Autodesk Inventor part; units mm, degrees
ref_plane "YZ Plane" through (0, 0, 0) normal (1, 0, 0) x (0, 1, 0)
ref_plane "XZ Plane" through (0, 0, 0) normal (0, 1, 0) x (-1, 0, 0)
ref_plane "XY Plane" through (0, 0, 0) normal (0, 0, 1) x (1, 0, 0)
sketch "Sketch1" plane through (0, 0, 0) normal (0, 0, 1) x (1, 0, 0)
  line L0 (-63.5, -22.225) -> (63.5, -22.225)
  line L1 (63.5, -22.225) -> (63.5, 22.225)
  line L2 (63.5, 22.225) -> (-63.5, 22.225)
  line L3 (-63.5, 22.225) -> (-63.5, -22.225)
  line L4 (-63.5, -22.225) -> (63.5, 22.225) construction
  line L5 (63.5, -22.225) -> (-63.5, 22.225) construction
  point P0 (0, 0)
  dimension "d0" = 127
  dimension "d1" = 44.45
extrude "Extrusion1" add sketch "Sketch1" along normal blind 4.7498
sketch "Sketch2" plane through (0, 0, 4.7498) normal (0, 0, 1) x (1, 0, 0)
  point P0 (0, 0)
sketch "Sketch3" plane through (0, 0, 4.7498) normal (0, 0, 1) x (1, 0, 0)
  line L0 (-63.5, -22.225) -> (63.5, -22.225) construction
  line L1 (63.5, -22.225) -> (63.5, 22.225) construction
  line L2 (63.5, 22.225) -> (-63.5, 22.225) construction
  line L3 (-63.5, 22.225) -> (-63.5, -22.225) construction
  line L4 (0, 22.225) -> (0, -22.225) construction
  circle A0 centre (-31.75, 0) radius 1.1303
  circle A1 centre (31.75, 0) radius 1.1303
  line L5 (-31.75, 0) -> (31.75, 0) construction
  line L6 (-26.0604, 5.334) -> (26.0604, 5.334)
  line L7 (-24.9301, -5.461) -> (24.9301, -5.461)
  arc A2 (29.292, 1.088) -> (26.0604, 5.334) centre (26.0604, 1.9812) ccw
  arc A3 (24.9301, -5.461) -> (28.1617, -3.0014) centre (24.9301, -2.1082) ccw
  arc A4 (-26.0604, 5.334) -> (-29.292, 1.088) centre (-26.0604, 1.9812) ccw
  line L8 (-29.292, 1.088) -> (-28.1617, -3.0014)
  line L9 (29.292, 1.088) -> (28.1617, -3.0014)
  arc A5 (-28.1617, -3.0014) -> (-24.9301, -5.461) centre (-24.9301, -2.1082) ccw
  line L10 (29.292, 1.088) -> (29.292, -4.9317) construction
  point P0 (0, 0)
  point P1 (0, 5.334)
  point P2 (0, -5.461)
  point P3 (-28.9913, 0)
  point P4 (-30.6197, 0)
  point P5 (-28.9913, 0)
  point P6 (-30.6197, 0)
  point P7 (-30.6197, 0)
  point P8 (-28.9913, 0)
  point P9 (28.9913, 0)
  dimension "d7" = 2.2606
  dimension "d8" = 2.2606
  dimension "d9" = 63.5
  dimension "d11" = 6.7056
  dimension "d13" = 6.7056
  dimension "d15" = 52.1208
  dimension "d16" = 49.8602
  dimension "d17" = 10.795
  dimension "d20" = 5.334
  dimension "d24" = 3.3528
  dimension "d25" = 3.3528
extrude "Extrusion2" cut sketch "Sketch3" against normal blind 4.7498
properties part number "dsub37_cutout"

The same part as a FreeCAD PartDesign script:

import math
import FreeCAD as App
import Part
import Sketcher

V = App.Vector
Q = App.Units.Quantity

doc = App.newDocument("Part")
body = doc.addObject("PartDesign::Body", "Body")

# Sketch on XY plane
sketch1 = body.newObject("Sketcher::SketchObject", "Sketch")
sketch1.AttachmentSupport = (doc.getObject("XY_Plane"), [""])
sketch1.MapMode = "FlatFace"
sketch1.addGeometry(Part.LineSegment(V(-63.5, 22.225, 0), V(-63.5, -22.225, 0)), False)
sketch1.addGeometry(Part.LineSegment(V(-63.5, -22.225, 0), V(63.5, -22.225, 0)), False)
sketch1.addGeometry(Part.LineSegment(V(63.5, -22.225, 0), V(63.5, 22.225, 0)), False)
sketch1.addGeometry(Part.LineSegment(V(63.5, 22.225, 0), V(-63.5, 22.225, 0)), False)
sketch1.addConstraint(Sketcher.Constraint("Coincident", 0, 2, 1, 1))
sketch1.addConstraint(Sketcher.Constraint("Coincident", 1, 2, 2, 1))
sketch1.addConstraint(Sketcher.Constraint("Coincident", 2, 2, 3, 1))
sketch1.addConstraint(Sketcher.Constraint("Coincident", 3, 2, 0, 1))
sketch1.addConstraint(Sketcher.Constraint("Vertical", 0))
sketch1.addConstraint(Sketcher.Constraint("Horizontal", 1))
sketch1.addConstraint(Sketcher.Constraint("Vertical", 2))
sketch1.addConstraint(Sketcher.Constraint("Horizontal", 3))
sketch1.addConstraint(Sketcher.Constraint("Symmetric", 0, 2, 2, 2, -1, 1))
sketch1.addConstraint(Sketcher.Constraint("DistanceX", 1, 1, 1, 2, Q("5 in")))
sketch1.addConstraint(Sketcher.Constraint("DistanceY", 0, 2, 0, 1, Q("1.75 in")))
pad1 = body.newObject("PartDesign::Pad", "Pad")
pad1.Profile = sketch1
pad1.Length = Q("0.187 in")

# Sketch on XY plane
sketch2 = body.newObject("Sketcher::SketchObject", "Sketch001")
sketch2.AttachmentSupport = (doc.getObject("XY_Plane"), [""])
sketch2.MapMode = "FlatFace"
sketch2.AttachmentOffset = App.Placement(V(0, 0, 0.187 * 25.4), App.Rotation())
sketch2.addGeometry(Part.Circle(V(-31.75, 0, 0), V(0, 0, 1), 1.1303), False)
sketch2.addGeometry(Part.Circle(V(31.75, 0, 0), V(0, 0, 1), 1.1303), False)
sketch2.addGeometry(Part.LineSegment(V(26.0604, 5.334, 0), V(-26.0604, 5.334, 0)), False)
sketch2.addGeometry(Part.ArcOfCircle(Part.Circle(V(-26.0604, 1.9812, 0), V(0, 0, 1), 3.3528), math.radians(90), math.radians(195.450564)), False)
sketch2.addGeometry(Part.LineSegment(V(-29.292, 1.088, 0), V(-28.1617, -3.0014, 0)), False)
sketch2.addGeometry(Part.ArcOfCircle(Part.Circle(V(-24.9301, -2.1082, 0), V(0, 0, 1), 3.352767), math.radians(-164.549436), math.radians(-90)), False)
sketch2.addGeometry(Part.LineSegment(V(-24.9301, -5.461, 0), V(24.9301, -5.461, 0)), False)
sketch2.addGeometry(Part.ArcOfCircle(Part.Circle(V(24.9301, -2.1082, 0), V(0, 0, 1), 3.3528), math.radians(-90), math.radians(-15.450564)), False)
sketch2.addGeometry(Part.LineSegment(V(28.1617, -3.0014, 0), V(29.292, 1.088, 0)), False)
sketch2.addGeometry(Part.ArcOfCircle(Part.Circle(V(26.0604, 1.9812, 0), V(0, 0, 1), 3.352767), math.radians(-15.450564), math.radians(90)), False)
sketch2.addConstraint(Sketcher.Constraint("Tangent", 2, 2, 3, 1))
sketch2.addConstraint(Sketcher.Constraint("Tangent", 3, 2, 4, 1))
sketch2.addConstraint(Sketcher.Constraint("Tangent", 4, 2, 5, 1))
sketch2.addConstraint(Sketcher.Constraint("Tangent", 5, 2, 6, 1))
sketch2.addConstraint(Sketcher.Constraint("Tangent", 6, 2, 7, 1))
sketch2.addConstraint(Sketcher.Constraint("Tangent", 7, 2, 8, 1))
sketch2.addConstraint(Sketcher.Constraint("Tangent", 8, 2, 9, 1))
sketch2.addConstraint(Sketcher.Constraint("Tangent", 9, 2, 2, 1))
sketch2.addConstraint(Sketcher.Constraint("Horizontal", 2))
sketch2.addConstraint(Sketcher.Constraint("Horizontal", 6))
sketch2.addConstraint(Sketcher.Constraint("Equal", 0, 1))
sketch2.addConstraint(Sketcher.Constraint("Equal", 3, 5))
sketch2.addConstraint(Sketcher.Constraint("Equal", 5, 7))
sketch2.addConstraint(Sketcher.Constraint("Equal", 7, 9))
sketch2.addConstraint(Sketcher.Constraint("Symmetric", 0, 3, 1, 3, -1, 1))
sketch2.addConstraint(Sketcher.Constraint("Symmetric", 4, 2, 7, 2, -2))
sketch2.addConstraint(Sketcher.Constraint("PointOnObject", 0, 3, -1))
sketch2.addConstraint(Sketcher.Constraint("Diameter", 0, Q("0.089 in")))
sketch2.addConstraint(Sketcher.Constraint("Radius", 3, Q("0.132 in")))
sketch2.addConstraint(Sketcher.Constraint("DistanceX", 0, 3, 1, 3, Q("2.5 in")))
sketch2.addConstraint(Sketcher.Constraint("DistanceX", 2, 2, 2, 1, Q("2.052 in")))
sketch2.addConstraint(Sketcher.Constraint("DistanceX", 6, 1, 6, 2, Q("1.963 in")))
sketch2.addConstraint(Sketcher.Constraint("DistanceY", -1, 1, 2, 2, Q("0.21 in")))
sketch2.addConstraint(Sketcher.Constraint("Angle", 4, Q("-74.5493 deg")))
pocket1 = body.newObject("PartDesign::Pocket", "Pocket")
pocket1.Profile = sketch2
pocket1.Length = Q("0.187 in")

doc.recompute()
